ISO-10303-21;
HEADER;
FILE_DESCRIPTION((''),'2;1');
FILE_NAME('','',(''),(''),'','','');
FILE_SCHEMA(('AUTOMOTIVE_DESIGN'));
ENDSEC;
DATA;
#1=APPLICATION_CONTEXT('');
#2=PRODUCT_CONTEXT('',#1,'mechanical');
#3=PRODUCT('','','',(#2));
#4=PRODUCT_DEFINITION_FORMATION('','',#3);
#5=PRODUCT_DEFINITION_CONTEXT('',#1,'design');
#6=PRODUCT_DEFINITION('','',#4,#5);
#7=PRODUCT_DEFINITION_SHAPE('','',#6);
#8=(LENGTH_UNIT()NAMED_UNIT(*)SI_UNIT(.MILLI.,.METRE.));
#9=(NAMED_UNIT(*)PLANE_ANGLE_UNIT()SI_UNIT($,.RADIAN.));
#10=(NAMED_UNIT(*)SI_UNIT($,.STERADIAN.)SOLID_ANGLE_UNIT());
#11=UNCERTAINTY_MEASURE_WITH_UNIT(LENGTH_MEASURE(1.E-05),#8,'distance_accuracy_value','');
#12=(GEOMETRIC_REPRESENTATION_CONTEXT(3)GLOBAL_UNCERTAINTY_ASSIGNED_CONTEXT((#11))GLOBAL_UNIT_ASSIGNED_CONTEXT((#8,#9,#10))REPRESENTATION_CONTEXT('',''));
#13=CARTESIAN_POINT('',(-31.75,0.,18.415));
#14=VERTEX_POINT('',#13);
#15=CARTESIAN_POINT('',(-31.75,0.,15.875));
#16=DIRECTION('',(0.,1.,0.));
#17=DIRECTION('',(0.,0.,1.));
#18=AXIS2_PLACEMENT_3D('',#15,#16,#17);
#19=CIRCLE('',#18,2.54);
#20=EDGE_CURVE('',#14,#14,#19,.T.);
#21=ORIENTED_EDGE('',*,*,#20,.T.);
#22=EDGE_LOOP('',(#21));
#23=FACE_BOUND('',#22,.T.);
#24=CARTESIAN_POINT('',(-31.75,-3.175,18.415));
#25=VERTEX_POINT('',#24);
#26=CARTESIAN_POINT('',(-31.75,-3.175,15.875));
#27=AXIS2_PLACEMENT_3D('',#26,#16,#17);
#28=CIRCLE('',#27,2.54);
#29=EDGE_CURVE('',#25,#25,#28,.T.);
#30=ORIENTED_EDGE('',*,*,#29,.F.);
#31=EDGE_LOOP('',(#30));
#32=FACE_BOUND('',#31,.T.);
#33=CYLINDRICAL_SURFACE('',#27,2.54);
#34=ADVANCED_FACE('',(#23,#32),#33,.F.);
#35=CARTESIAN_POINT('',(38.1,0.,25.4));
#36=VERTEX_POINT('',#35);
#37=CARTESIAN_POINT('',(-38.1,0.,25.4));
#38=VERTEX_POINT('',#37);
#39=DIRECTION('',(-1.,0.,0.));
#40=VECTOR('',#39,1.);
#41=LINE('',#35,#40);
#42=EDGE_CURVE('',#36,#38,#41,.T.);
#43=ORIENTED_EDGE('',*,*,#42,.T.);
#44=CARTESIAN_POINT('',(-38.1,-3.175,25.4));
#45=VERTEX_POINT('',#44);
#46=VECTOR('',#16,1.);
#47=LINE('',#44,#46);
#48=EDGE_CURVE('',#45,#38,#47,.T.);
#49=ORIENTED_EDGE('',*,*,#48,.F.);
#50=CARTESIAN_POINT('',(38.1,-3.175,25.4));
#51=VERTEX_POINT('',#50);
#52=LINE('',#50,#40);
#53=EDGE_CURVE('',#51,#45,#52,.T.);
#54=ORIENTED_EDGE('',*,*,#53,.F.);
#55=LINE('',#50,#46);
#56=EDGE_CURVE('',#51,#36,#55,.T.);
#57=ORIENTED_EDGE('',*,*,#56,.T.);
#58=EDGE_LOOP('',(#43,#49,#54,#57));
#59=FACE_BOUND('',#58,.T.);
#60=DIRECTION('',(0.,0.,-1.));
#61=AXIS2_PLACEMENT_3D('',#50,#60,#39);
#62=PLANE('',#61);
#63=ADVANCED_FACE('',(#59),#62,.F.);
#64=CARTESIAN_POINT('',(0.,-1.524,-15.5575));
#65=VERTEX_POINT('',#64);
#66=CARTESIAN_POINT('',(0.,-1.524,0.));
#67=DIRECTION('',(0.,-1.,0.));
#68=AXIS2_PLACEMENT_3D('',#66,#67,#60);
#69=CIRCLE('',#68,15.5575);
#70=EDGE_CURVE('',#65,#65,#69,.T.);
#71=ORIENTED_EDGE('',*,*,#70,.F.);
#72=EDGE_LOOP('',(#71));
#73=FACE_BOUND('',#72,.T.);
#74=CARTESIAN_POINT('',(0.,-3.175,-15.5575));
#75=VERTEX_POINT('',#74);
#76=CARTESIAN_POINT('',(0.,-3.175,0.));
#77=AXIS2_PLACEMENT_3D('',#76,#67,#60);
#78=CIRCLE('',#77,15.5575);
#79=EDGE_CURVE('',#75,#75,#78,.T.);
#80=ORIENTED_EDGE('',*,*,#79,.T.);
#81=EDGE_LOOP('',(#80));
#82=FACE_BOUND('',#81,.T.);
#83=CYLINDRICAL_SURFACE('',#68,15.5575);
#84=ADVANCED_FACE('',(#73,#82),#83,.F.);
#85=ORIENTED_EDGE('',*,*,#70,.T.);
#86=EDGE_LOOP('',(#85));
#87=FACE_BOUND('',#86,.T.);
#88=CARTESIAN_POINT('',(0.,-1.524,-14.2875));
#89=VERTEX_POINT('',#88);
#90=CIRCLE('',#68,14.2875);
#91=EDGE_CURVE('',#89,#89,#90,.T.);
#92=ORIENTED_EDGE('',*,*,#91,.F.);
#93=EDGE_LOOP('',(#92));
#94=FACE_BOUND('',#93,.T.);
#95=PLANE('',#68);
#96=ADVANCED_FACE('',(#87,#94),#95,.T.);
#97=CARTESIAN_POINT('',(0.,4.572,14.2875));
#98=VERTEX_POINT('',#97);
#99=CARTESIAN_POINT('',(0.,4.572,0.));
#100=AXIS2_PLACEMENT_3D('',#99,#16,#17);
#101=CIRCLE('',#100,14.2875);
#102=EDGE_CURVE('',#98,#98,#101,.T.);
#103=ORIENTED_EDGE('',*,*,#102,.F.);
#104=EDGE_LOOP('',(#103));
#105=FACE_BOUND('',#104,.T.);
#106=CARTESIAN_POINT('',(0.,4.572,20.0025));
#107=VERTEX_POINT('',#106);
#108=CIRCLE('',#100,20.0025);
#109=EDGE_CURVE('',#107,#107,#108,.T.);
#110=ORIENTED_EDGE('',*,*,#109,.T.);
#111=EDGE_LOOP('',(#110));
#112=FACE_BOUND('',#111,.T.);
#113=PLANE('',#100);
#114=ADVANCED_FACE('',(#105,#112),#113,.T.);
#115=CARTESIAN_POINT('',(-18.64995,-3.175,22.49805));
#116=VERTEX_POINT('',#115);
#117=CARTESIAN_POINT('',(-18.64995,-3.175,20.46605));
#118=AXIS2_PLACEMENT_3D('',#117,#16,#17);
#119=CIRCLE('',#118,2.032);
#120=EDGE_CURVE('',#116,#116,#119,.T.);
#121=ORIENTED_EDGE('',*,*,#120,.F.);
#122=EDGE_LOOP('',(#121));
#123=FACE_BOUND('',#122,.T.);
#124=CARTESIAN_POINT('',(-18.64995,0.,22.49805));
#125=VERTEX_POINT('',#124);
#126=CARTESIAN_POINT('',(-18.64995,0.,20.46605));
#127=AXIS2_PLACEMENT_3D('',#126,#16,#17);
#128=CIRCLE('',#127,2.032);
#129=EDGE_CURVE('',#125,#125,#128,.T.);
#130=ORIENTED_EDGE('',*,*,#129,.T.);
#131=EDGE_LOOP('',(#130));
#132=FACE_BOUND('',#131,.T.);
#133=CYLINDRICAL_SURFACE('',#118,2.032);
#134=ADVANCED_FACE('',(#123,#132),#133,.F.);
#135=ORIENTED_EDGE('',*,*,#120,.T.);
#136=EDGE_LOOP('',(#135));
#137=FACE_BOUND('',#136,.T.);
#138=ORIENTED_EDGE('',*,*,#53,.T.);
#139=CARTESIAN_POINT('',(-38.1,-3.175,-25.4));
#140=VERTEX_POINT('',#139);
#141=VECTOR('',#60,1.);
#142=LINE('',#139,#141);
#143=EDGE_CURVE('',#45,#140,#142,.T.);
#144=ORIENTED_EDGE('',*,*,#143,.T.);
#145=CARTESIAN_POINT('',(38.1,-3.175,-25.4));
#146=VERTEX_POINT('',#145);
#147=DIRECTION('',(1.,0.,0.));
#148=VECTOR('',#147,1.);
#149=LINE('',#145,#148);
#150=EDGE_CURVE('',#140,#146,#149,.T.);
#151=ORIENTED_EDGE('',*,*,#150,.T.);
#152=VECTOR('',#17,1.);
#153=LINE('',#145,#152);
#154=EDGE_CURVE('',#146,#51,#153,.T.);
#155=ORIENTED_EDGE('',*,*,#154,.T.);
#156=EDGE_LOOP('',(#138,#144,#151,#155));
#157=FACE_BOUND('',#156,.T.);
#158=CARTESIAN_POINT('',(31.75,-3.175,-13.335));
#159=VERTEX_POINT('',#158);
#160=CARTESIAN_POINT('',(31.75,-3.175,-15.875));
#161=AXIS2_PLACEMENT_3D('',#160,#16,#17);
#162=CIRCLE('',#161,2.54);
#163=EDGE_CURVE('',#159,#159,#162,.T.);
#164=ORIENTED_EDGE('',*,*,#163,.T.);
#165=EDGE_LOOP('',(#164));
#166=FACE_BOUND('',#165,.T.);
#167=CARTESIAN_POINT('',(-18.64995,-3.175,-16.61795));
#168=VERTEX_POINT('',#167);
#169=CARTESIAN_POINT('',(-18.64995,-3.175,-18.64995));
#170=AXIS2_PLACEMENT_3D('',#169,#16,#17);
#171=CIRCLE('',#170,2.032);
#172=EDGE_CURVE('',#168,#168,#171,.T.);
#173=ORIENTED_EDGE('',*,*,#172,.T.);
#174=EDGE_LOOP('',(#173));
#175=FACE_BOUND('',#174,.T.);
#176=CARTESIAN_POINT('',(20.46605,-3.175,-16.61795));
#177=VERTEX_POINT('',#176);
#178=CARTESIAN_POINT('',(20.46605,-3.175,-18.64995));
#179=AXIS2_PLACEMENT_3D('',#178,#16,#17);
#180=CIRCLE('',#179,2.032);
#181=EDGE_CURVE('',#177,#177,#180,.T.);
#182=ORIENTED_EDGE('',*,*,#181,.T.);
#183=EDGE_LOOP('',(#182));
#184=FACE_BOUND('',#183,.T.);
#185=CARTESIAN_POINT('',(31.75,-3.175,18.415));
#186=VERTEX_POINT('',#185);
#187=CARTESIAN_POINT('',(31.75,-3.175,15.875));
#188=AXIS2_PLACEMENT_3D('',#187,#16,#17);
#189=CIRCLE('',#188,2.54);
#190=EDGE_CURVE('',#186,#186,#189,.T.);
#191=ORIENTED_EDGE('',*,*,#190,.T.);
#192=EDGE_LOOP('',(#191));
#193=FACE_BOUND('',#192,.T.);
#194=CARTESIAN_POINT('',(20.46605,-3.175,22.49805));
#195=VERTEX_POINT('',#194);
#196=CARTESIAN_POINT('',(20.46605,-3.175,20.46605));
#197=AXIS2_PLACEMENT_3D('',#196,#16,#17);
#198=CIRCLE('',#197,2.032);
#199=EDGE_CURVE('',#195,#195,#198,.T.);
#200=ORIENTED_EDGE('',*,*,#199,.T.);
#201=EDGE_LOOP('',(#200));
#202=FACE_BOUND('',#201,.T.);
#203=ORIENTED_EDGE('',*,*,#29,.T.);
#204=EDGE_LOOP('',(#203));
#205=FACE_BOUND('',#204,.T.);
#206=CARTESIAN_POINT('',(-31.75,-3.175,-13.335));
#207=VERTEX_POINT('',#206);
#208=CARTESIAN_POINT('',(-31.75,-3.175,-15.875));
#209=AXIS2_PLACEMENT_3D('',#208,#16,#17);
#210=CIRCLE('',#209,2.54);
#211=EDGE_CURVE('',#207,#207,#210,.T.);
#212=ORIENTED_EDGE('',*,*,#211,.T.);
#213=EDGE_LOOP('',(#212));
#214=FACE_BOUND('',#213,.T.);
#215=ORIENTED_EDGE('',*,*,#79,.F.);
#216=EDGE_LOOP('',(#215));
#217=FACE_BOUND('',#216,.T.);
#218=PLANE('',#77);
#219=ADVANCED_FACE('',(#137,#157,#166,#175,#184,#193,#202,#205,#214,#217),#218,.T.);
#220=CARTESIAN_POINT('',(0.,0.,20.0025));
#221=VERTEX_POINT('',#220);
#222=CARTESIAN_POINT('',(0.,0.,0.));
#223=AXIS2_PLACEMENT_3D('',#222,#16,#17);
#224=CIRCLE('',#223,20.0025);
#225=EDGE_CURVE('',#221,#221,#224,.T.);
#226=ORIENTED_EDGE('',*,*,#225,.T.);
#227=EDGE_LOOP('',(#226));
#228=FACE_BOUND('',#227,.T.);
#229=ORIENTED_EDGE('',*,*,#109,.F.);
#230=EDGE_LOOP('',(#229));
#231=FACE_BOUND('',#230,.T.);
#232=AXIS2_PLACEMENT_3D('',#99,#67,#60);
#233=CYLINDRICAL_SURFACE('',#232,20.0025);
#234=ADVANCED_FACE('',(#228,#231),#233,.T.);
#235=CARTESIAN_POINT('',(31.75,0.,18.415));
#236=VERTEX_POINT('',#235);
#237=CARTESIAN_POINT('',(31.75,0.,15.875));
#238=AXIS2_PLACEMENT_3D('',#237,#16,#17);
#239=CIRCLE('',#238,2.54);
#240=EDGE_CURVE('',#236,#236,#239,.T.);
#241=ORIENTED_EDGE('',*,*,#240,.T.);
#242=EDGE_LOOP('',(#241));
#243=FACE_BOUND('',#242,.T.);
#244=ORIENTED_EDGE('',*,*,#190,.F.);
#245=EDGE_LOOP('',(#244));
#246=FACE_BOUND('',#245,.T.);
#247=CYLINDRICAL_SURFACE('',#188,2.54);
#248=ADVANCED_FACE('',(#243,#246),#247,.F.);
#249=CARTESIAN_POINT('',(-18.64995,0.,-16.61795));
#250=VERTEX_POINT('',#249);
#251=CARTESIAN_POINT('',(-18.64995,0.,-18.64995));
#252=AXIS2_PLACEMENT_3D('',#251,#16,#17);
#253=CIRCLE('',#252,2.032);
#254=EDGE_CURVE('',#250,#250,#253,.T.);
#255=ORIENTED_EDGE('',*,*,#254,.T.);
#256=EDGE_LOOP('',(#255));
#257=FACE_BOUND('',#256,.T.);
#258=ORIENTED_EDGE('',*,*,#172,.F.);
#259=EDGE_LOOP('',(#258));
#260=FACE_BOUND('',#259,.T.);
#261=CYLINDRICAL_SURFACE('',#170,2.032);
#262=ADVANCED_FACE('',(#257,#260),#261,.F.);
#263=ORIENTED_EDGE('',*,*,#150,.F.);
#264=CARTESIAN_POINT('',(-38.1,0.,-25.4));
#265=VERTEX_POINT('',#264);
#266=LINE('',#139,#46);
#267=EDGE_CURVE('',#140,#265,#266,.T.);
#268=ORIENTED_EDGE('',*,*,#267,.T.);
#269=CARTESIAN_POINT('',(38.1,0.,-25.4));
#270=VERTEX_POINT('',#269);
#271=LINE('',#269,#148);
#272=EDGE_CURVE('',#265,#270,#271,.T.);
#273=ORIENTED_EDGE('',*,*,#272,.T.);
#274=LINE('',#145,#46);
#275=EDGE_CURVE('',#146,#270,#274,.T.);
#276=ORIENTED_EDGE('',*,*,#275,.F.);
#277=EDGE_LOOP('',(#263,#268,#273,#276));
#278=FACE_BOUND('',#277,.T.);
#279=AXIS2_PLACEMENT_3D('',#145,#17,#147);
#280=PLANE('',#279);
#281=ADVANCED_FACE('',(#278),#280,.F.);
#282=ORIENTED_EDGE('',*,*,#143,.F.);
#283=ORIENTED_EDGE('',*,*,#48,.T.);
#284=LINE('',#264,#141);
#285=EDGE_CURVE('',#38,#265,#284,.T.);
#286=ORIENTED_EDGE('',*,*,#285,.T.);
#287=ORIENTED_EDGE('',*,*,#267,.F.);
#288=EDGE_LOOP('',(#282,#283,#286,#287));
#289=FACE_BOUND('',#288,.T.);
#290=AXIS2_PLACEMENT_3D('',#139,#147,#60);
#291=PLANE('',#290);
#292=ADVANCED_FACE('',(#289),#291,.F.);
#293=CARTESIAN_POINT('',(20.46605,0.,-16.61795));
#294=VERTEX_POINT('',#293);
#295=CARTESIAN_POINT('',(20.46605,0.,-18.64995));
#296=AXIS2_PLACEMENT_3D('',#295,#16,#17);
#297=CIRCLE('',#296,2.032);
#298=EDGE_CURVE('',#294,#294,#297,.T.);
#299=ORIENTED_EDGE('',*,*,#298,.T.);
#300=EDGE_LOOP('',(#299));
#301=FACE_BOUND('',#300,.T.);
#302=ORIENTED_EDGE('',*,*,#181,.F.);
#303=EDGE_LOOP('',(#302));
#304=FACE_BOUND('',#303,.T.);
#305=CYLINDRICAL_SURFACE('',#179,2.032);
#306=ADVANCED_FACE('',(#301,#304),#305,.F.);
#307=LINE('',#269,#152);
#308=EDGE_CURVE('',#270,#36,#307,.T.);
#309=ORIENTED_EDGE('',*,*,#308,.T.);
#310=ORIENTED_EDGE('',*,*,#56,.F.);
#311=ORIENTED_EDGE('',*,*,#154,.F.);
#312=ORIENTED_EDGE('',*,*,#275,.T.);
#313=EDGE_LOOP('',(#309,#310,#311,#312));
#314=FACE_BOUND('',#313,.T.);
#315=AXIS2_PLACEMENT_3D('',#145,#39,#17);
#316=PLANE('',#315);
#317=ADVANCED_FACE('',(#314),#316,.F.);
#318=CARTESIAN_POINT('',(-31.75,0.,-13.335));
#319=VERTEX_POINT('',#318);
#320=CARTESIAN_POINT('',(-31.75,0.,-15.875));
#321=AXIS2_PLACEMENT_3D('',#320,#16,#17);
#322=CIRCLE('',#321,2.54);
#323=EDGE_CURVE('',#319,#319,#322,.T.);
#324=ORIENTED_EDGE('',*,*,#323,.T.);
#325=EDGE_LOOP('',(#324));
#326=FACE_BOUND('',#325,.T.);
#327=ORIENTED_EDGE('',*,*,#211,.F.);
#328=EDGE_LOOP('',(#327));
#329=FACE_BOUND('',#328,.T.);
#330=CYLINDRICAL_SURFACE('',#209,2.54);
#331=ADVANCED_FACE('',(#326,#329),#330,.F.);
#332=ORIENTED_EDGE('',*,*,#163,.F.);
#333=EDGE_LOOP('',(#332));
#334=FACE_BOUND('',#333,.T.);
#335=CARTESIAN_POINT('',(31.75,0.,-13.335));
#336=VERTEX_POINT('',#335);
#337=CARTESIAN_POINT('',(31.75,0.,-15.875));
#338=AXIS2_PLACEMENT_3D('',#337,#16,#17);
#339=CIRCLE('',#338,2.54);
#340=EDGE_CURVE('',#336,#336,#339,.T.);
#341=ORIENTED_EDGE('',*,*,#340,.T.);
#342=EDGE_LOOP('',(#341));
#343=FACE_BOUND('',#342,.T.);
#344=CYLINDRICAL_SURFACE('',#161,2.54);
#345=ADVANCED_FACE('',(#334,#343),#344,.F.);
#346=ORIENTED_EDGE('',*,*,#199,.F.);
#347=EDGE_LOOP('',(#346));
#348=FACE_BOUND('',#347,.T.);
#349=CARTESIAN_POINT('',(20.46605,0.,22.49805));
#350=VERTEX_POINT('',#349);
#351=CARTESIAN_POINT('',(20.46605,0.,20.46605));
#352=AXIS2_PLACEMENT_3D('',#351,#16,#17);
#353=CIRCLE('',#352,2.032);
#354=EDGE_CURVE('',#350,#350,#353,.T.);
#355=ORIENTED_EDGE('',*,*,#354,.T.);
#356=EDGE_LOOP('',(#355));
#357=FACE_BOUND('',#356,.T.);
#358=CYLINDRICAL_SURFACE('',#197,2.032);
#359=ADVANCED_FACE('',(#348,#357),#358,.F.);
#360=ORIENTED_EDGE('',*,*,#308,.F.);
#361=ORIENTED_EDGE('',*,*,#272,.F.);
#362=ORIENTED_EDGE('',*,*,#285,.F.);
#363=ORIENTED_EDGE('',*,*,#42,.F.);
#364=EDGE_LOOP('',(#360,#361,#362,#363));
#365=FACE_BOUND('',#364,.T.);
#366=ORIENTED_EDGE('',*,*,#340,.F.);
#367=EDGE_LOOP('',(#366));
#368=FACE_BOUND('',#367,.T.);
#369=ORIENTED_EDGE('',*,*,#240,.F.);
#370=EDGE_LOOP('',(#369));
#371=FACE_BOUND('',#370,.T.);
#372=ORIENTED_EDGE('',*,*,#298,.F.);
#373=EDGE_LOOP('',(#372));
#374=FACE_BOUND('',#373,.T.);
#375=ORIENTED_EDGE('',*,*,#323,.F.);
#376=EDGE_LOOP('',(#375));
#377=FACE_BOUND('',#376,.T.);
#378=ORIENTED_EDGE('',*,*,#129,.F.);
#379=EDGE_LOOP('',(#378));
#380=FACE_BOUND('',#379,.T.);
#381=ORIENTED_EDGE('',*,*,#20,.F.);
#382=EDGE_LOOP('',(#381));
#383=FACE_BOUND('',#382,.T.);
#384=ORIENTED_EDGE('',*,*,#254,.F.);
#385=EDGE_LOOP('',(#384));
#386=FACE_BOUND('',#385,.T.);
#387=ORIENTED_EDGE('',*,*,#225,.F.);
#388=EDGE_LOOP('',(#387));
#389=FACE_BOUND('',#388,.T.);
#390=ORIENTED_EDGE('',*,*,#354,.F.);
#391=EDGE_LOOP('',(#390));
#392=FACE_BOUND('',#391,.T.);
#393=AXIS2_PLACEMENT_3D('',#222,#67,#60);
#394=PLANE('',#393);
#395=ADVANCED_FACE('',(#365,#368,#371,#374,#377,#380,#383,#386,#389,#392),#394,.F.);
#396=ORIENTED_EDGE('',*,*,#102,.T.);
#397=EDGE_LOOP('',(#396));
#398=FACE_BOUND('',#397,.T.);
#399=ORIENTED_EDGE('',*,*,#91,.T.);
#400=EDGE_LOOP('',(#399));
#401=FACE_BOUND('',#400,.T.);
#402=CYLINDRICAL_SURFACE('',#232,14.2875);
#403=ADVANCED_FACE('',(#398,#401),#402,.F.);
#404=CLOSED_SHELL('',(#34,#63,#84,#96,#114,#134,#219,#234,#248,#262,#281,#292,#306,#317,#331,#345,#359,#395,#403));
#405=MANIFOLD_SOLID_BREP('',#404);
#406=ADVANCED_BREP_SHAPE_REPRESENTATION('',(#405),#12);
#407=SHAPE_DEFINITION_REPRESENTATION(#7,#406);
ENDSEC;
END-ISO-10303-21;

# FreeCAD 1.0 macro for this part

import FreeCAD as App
import Part
import Sketcher
from FreeCAD import Vector
Q = App.Units.Quantity

doc = App.newDocument("Part")
body = doc.addObject("PartDesign::Body", "Body")

# Sketch on XZ plane
sketch1 = body.newObject("Sketcher::SketchObject", "Sketch")
sketch1.AttachmentSupport = (doc.getObject("XZ_Plane"), [""])
sketch1.MapMode = "FlatFace"
sketch1.addGeometry(Part.Circle(Vector(0, 0, 0), Vector(0, 0, 1), 20), False)
sketch1.addGeometry(Part.Circle(Vector(0, 0, 0), Vector(0, 0, 1), 14), False)
sketch1.addConstraint(Sketcher.Constraint("Coincident", 0, 3, -1, 1))
sketch1.addConstraint(Sketcher.Constraint("Coincident", 1, 3, -1, 1))
sketch1.addConstraint(Sketcher.Constraint("Diameter", 0, Q("1.575 in")))
sketch1.addConstraint(Sketcher.Constraint("Diameter", 1, Q("1.125 in")))
pad1 = body.newObject("PartDesign::Pad", "Pad")
pad1.Profile = sketch1
pad1.Length = Q("0.18 in")
pad1.Reversed = True

# Sketch on XZ plane
sketch2 = body.newObject("Sketcher::SketchObject", "Sketch001")
sketch2.AttachmentSupport = (doc.getObject("XZ_Plane"), [""])
sketch2.MapMode = "FlatFace"
sketch2.addGeometry(Part.LineSegment(Vector(-38, 25, 0), Vector(-38, -25, 0)), False)
sketch2.addGeometry(Part.LineSegment(Vector(-38, -25, 0), Vector(38, -25, 0)), False)
sketch2.addGeometry(Part.LineSegment(Vector(38, -25, 0), Vector(38, 25, 0)), False)
sketch2.addGeometry(Part.LineSegment(Vector(38, 25, 0), Vector(-38, 25, 0)), False)
sketch2.addGeometry(Part.Circle(Vector(0, 0, 0), Vector(0, 0, 1), 14), False)
sketch2.addConstraint(Sketcher.Constraint("Coincident", 0, 2, 1, 1))
sketch2.addConstraint(Sketcher.Constraint("Coincident", 1, 2, 2, 1))
sketch2.addConstraint(Sketcher.Constraint("Coincident", 2, 2, 3, 1))
sketch2.addConstraint(Sketcher.Constraint("Coincident", 3, 2, 0, 1))
sketch2.addConstraint(Sketcher.Constraint("Vertical", 0))
sketch2.addConstraint(Sketcher.Constraint("Horizontal", 1))
sketch2.addConstraint(Sketcher.Constraint("Vertical", 2))
sketch2.addConstraint(Sketcher.Constraint("Horizontal", 3))
sketch2.addConstraint(Sketcher.Constraint("Coincident", 4, 3, -1, 1))
sketch2.addConstraint(Sketcher.Constraint("Symmetric", 0, 2, 2, 2, -1, 1))
sketch2.addConstraint(Sketcher.Constraint("DistanceX", 1, 1, 1, 2, Q("3 in")))
sketch2.addConstraint(Sketcher.Constraint("DistanceY", 0, 2, 0, 1, Q("2 in")))
sketch2.addConstraint(Sketcher.Constraint("Diameter", 4, Q("1.125 in")))
pad2 = body.newObject("PartDesign::Pad", "Pad001")
pad2.Profile = sketch2
pad2.Length = Q("0.125 in")

# Sketch on XZ plane
sketch3 = body.newObject("Sketcher::SketchObject", "Sketch002")
sketch3.AttachmentSupport = (doc.getObject("XZ_Plane"), [""])
sketch3.MapMode = "FlatFace"
sketch3.AttachmentOffset = App.Placement(Vector(0, 0, 0.125 * 25.4), App.Rotation())
sketch3.addGeometry(Part.Circle(Vector(0, 0, 0), Vector(0, 0, 1), 16), False)
sketch3.addConstraint(Sketcher.Constraint("Coincident", 0, 3, -1, 1))
sketch3.addConstraint(Sketcher.Constraint("Diameter", 0, Q("1.225 in")))
pocket1 = body.newObject("PartDesign::Pocket", "Pocket")
pocket1.Profile = sketch3
pocket1.Length = Q("0.065 in")

# Sketch on XZ plane
sketch4 = body.newObject("Sketcher::SketchObject", "Sketch003")
sketch4.AttachmentSupport = (doc.getObject("XZ_Plane"), [""])
sketch4.MapMode = "FlatFace"
sketch4.addGeometry(Part.Circle(Vector(-18.6, -18.6, 0), Vector(0, 0, 1), 2), False)
sketch4.addGeometry(Part.Circle(Vector(20.5, -18.6, 0), Vector(0, 0, 1), 2), False)
sketch4.addGeometry(Part.Circle(Vector(-18.6, 20.5, 0), Vector(0, 0, 1), 2), False)
sketch4.addGeometry(Part.Circle(Vector(20.5, 20.5, 0), Vector(0, 0, 1), 2), False)
sketch4.addGeometry(Part.Circle(Vector(-31.8, -15.9, 0), Vector(0, 0, 1), 2.5), False)
sketch4.addGeometry(Part.Circle(Vector(31.8, -15.9, 0), Vector(0, 0, 1), 2.5), False)
sketch4.addGeometry(Part.Circle(Vector(31.8, 15.9, 0), Vector(0, 0, 1), 2.5), False)
sketch4.addGeometry(Part.Circle(Vector(-31.8, 15.9, 0), Vector(0, 0, 1), 2.5), False)
sketch4.addConstraint(Sketcher.Constraint("Equal", 0, 1))
sketch4.addConstraint(Sketcher.Constraint("Equal", 1, 2))
sketch4.addConstraint(Sketcher.Constraint("Equal", 2, 3))
sketch4.addConstraint(Sketcher.Constraint("Equal", 4, 5))
sketch4.addConstraint(Sketcher.Constraint("Equal", 5, 6))
sketch4.addConstraint(Sketcher.Constraint("Equal", 6, 7))
sketch4.addConstraint(Sketcher.Constraint("Symmetric", 4, 3, 6, 3, -1, 1))
sketch4.addConstraint(Sketcher.Constraint("Symmetric", 5, 3, 7, 3, -1, 1))
sketch4.addConstraint(Sketcher.Constraint("Symmetric", 4, 3, 5, 3, -2))
sketch4.addConstraint(Sketcher.Constraint("Horizontal", 0, 3, 1, 3))
sketch4.addConstraint(Sketcher.Constraint("Horizontal", 2, 3, 3, 3))
sketch4.addConstraint(Sketcher.Constraint("Vertical", 0, 3, 2, 3))
sketch4.addConstraint(Sketcher.Constraint("Vertical", 1, 3, 3, 3))
sketch4.addConstraint(Sketcher.Constraint("Diameter", 4, Q("0.2 in")))
sketch4.addConstraint(Sketcher.Constraint("Diameter", 0, Q("0.16 in")))
sketch4.addConstraint(Sketcher.Constraint("DistanceX", 4, 3, 5, 3, Q("2.5 in")))
sketch4.addConstraint(Sketcher.Constraint("DistanceX", 0, 3, 1, 3, Q("1.54 in")))
sketch4.addConstraint(Sketcher.Constraint("DistanceY", 0, 3, 2, 3, Q("1.54 in")))
sketch4.addConstraint(Sketcher.Constraint("DistanceY", 5, 3, 6, 3, Q("1.25 in")))
sketch4.addConstraint(Sketcher.Constraint("DistanceX", 0, 3, -1, 1, 18.64995))
sketch4.addConstraint(Sketcher.Constraint("DistanceY", 0, 3, -1, 1, 18.64995))
pocket2 = body.newObject("PartDesign::Pocket", "Pocket001")
pocket2.Profile = sketch4
pocket2.Type = "ThroughAll"
pocket2.Reversed = True

doc.recompute()
